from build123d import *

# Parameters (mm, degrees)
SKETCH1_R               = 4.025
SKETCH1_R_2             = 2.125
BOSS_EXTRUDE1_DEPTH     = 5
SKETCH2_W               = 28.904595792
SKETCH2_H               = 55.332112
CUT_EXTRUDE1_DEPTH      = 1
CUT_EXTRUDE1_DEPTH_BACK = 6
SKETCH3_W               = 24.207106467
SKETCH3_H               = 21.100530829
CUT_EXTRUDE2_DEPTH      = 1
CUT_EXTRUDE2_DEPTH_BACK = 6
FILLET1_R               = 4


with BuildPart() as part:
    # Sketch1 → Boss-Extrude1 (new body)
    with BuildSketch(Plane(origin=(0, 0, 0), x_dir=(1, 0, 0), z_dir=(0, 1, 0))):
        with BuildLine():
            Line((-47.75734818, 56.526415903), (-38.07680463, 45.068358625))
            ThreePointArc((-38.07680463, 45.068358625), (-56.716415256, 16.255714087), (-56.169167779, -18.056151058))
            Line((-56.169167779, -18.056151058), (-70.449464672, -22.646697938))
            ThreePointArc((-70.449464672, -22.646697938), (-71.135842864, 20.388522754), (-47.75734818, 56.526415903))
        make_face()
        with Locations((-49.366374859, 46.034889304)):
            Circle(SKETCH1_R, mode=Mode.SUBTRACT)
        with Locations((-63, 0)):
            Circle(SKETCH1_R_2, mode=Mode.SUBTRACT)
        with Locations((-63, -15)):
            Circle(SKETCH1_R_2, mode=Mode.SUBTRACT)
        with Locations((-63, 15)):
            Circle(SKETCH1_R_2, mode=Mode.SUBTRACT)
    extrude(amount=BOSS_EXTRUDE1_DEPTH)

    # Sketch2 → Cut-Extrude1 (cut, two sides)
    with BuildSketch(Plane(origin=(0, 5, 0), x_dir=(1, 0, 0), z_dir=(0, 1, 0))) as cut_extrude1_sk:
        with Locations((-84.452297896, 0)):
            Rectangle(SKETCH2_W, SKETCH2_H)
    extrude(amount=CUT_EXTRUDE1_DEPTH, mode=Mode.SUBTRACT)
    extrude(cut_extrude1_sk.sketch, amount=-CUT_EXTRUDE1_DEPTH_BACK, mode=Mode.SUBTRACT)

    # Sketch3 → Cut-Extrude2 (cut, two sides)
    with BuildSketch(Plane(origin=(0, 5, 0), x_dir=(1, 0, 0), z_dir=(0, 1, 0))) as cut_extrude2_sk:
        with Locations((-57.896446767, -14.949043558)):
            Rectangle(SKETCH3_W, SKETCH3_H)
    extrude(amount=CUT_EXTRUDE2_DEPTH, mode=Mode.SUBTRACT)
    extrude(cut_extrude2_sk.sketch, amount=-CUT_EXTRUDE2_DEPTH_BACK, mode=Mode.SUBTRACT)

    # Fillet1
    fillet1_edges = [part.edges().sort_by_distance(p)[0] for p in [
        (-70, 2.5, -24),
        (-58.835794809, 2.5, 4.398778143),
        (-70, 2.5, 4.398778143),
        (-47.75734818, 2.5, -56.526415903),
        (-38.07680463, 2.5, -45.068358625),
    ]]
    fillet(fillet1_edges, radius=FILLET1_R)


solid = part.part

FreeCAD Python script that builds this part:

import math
import FreeCAD as App
import Part
import Sketcher
Q = App.Units.Quantity


def edges_at(feature, points):
    """Names of the edges that pass closest to the given points."""
    edges = feature.Shape.Edges
    near = lambda p: min(range(len(edges)), key=lambda i: edges[i].distToShape(Part.Vertex(*p))[0])
    return sorted({f"Edge{near(p) + 1}" for p in points})


def add_polygon(sketch, points):
    """Adds a closed chain of lines whose ends are joined by coincident constraints."""
    first, n = sketch.GeometryCount, len(points)
    for a, b in zip(points, points[1:] + points[:1]):
        sketch.addGeometry(Part.LineSegment(App.Vector(*a, 0), App.Vector(*b, 0)), False)
    for i in range(n):
        sketch.addConstraint(Sketcher.Constraint("Coincident", first + i, 2, first + (i + 1) % n, 1))

doc = App.newDocument("Part")
params = doc.addObject("Spreadsheet::Sheet", "Params")
for row, (alias, value) in enumerate([
    ("sketch1_radius", "74 mm"),
    ("sketch1_radius2", "59 mm"),
    ("sketch1_diameter", "4.25 mm"),
    ("sketch1_diameter2", "8.05 mm"),
    ("pad1_length", "5 mm"),
    ("fillet_radius", "4 mm"),
], start=1):
    params.set(f"A{row}", alias)
    params.set(f"B{row}", "=" + value)
    params.setAlias(f"B{row}", alias)

body = doc.addObject("PartDesign::Body", "Body")

sketch1 = body.newObject("Sketcher::SketchObject", "Sketch")
sketch1.AttachmentSupport = (doc.getObject("XZ_Plane"), [""])
sketch1.MapMode = "FlatFace"
sketch1.addGeometry(Part.LineSegment(App.Vector(-38.076805, -45.068359, 0), App.Vector(-47.757348, -56.526416, 0)), False)
sketch1.addGeometry(Part.ArcOfCircle(Part.Circle(App.Vector(0, 0, 0), App.Vector(0, 0, 1), 74), math.radians(162.179469), math.radians(229.80661)), False)
sketch1.addGeometry(Part.LineSegment(App.Vector(-70.449465, 22.646698, 0), App.Vector(-56.169168, 18.056151, 0)), False)
sketch1.addGeometry(Part.ArcOfCircle(Part.Circle(App.Vector(0, 0, 0), App.Vector(0, 0, 1), 59), math.radians(162.179469), math.radians(229.80661)), False)
sketch1.addGeometry(Part.Circle(App.Vector(-63, 15, 0), App.Vector(0, 0, 1), 2.125), False)
sketch1.addGeometry(Part.Circle(App.Vector(-63, 0, 0), App.Vector(0, 0, 1), 2.125), False)
sketch1.addGeometry(Part.Circle(App.Vector(-63, -15, 0), App.Vector(0, 0, 1), 2.125), False)
sketch1.addGeometry(Part.Circle(App.Vector(-49.366375, -46.034889, 0), App.Vector(0, 0, 1), 4.025), False)
sketch1.addConstraint(Sketcher.Constraint("Coincident", 0, 2, 1, 2))
sketch1.addConstraint(Sketcher.Constraint("Coincident", 1, 1, 2, 1))
sketch1.addConstraint(Sketcher.Constraint("Coincident", 2, 2, 3, 1))
sketch1.addConstraint(Sketcher.Constraint("Coincident", 3, 2, 0, 1))
sketch1.addConstraint(Sketcher.Constraint("Coincident", 1, 3, -1, 1))
sketch1.addConstraint(Sketcher.Constraint("Coincident", 3, 3, -1, 1))
sketch1.addConstraint(Sketcher.Constraint("Equal", 4, 5))
sketch1.addConstraint(Sketcher.Constraint("Equal", 5, 6))
sketch1.addConstraint(Sketcher.Constraint("Symmetric", 4, 3, 6, 3, -1))
sketch1.addConstraint(Sketcher.Constraint("PointOnObject", 5, 3, -1))
sketch1.addConstraint(Sketcher.Constraint("Vertical", 4, 3, 5, 3))
sketch1.addConstraint(Sketcher.Constraint("Radius", 1, Q("74 mm")))
sketch1.addConstraint(Sketcher.Constraint("Radius", 3, Q("59 mm")))
sketch1.addConstraint(Sketcher.Constraint("Diameter", 4, Q("4.25 mm")))
sketch1.addConstraint(Sketcher.Constraint("Diameter", 7, Q("8.05 mm")))
sketch1.addConstraint(Sketcher.Constraint("DistanceX", 4, 3, -1, 1, Q("63 mm")))
sketch1.addConstraint(Sketcher.Constraint("DistanceY", -1, 1, 4, 3, Q("15 mm")))
sketch1.addConstraint(Sketcher.Constraint("DistanceY", 7, 3, -1, 1, Q("46.034889 mm")))
sketch1.addConstraint(Sketcher.Constraint("DistanceX", 0, 2, -1, 1, Q("47.757348 mm")))
sketch1.addConstraint(Sketcher.Constraint("DistanceY", -1, 1, 2, 2, Q("18.056151 mm")))
sketch1.addConstraint(Sketcher.Constraint("DistanceY", 3, 2, -1, 1, Q("45.068359 mm")))
sketch1.addConstraint(Sketcher.Constraint("DistanceX", 1, 1, 7, 3, Q("21.08309 mm")))
sketch1.addConstraint(Sketcher.Constraint("DistanceX", 7, 3, 3, 2, Q("11.28957 mm")))
sketch1.setExpression("Constraints[11]", "Params.sketch1_radius")
sketch1.setExpression("Constraints[12]", "Params.sketch1_radius2")
sketch1.setExpression("Constraints[13]", "Params.sketch1_diameter")
sketch1.setExpression("Constraints[14]", "Params.sketch1_diameter2")
pad1 = body.newObject("PartDesign::Pad", "Pad")
pad1.Profile = sketch1
pad1.setExpression("Length", "Params.pad1_length")
pad1.Reversed = True

sketch2 = body.newObject("Sketcher::SketchObject", "Sketch001")
sketch2.AttachmentSupport = (doc.getObject("XZ_Plane"), [""])
sketch2.MapMode = "FlatFace"
sketch2.AttachmentOffset = App.Placement(App.Vector(0, 0, -5), App.Rotation())
add_polygon(sketch2, [(-98.904596, -27.666056), (-98.904596, 27.666056), (-70, 27.666056), (-70, -27.666056)])
sketch2.addConstraint(Sketcher.Constraint("Vertical", 0))
sketch2.addConstraint(Sketcher.Constraint("Horizontal", 1))
sketch2.addConstraint(Sketcher.Constraint("Vertical", 2))
sketch2.addConstraint(Sketcher.Constraint("Horizontal", 3))
sketch2.addConstraint(Sketcher.Constraint("DistanceX", 1, 2, -1, 1, Q("70 mm")))
sketch2.addConstraint(Sketcher.Constraint("DistanceX", 1, 1, 1, 2, Q("28.904596 mm")))
sketch2.addConstraint(Sketcher.Constraint("DistanceY", 0, 1, 0, 2, Q("55.332112 mm")))
sketch2.addConstraint(Sketcher.Constraint("DistanceY", -1, 1, 0, 2, Q("27.666056 mm")))
pocket1 = body.newObject("PartDesign::Pocket", "Pocket")
pocket1.Profile = sketch2
pocket1.Type = "ThroughAll"
pocket1.Midplane = True

sketch3 = body.newObject("Sketcher::SketchObject", "Sketch002")
sketch3.AttachmentSupport = (doc.getObject("XZ_Plane"), [""])
sketch3.MapMode = "FlatFace"
sketch3.AttachmentOffset = App.Placement(App.Vector(0, 0, -5), App.Rotation())
add_polygon(sketch3, [(-70, 4.398778), (-70, 25.499309), (-45.792894, 25.499309), (-45.792894, 4.398778)])
sketch3.addConstraint(Sketcher.Constraint("Vertical", 0))
sketch3.addConstraint(Sketcher.Constraint("Horizontal", 1))
sketch3.addConstraint(Sketcher.Constraint("Vertical", 2))
sketch3.addConstraint(Sketcher.Constraint("Horizontal", 3))
sketch3.addConstraint(Sketcher.Constraint("DistanceX", 0, 2, -1, 1, Q("70 mm")))
sketch3.addConstraint(Sketcher.Constraint("DistanceY", 0, 1, 0, 2, Q("21.100531 mm")))
sketch3.addConstraint(Sketcher.Constraint("DistanceX", 1, 1, 1, 2, Q("24.207106 mm")))
sketch3.addConstraint(Sketcher.Constraint("DistanceY", -1, 1, 0, 2, Q("25.499309 mm")))
pocket2 = body.newObject("PartDesign::Pocket", "Pocket001")
pocket2.Profile = sketch3
pocket2.Type = "ThroughAll"
pocket2.Midplane = True
doc.recompute()

fillet = body.newObject("PartDesign::Fillet", "Fillet")
fillet.Base = (pocket2, edges_at(pocket2, [
    (-70, 2.5, -24),
    (-58.836, 2.5, 4.399),
    (-70, 2.5, 4.399),
    (-47.757, 2.5, -56.526),
    (-38.077, 2.5, -45.068),
]))
fillet.setExpression("Radius", "Params.fillet_radius")

doc.recompute()
